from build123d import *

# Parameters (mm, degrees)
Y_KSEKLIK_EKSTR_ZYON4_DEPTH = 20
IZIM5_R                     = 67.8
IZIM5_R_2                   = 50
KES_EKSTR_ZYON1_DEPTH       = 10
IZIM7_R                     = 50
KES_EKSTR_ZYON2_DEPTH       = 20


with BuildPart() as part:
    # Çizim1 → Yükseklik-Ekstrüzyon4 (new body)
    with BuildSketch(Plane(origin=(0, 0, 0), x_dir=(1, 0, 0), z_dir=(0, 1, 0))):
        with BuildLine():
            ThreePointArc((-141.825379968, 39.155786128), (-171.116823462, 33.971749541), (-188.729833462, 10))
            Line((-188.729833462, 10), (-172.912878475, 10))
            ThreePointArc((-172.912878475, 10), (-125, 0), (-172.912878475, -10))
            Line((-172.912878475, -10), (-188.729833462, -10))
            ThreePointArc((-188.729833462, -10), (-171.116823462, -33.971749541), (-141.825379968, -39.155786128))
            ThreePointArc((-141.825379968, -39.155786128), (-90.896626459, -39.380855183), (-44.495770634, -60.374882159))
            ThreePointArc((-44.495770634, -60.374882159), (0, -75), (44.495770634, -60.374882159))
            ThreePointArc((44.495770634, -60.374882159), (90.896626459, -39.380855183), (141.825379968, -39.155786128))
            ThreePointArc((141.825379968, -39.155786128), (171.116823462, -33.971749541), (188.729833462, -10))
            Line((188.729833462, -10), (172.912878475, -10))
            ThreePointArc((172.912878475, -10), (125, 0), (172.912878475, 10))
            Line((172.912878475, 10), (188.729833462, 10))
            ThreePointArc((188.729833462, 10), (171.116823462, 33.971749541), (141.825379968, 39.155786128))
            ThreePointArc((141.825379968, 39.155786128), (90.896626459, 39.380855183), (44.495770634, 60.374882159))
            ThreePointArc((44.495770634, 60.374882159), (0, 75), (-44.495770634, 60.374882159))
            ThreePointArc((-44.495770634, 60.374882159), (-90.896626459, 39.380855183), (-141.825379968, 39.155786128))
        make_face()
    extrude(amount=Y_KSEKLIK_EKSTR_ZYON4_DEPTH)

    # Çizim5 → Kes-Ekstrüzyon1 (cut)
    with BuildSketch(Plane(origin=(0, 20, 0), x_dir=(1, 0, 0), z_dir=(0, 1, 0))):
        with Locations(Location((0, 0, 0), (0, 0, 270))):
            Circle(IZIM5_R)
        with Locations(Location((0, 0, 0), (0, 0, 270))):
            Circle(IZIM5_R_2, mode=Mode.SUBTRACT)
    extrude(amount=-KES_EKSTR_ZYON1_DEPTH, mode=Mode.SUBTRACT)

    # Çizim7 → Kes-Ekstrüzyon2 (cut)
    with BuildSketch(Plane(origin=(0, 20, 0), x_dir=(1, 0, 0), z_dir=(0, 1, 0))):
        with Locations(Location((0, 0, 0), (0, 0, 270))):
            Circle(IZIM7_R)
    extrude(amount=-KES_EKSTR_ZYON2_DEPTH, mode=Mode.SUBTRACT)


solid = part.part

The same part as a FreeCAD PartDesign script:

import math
import FreeCAD as App
import Part
import Sketcher
Q = App.Units.Quantity

doc = App.newDocument("Part")
body = doc.addObject("PartDesign::Body", "Body")

# Sketch on XZ plane
sketch1 = body.newObject("Sketcher::SketchObject", "Sketch")
sketch1.AttachmentSupport = (doc.getObject("XZ_Plane"), [""])
sketch1.MapMode = "FlatFace"
sketch1.addGeometry([
    Part.ArcOfCircle(Part.Circle(App.Vector(-150, 0, 0), App.Vector(0, 0, 1), 40), math.radians(-166), math.radians(-78)),  # 0
    Part.LineSegment(App.Vector(-189, -10, 0), App.Vector(-173, -10, 0)),  # 1
    Part.ArcOfCircle(Part.Circle(App.Vector(-150, 0, 0), App.Vector(0, 0, 1), 25), math.radians(-156), math.radians(156)),  # 2
    Part.LineSegment(App.Vector(-173, 10, 0), App.Vector(-189, 10, 0)),  # 3
    Part.ArcOfCircle(Part.Circle(App.Vector(-150, 0, 0), App.Vector(0, 0, 1), 40), math.radians(78), math.radians(166)),  # 4
    Part.ArcOfCircle(Part.Circle(App.Vector(-117, 159, 0), App.Vector(0, 0, 1), 122), math.radians(-102), math.radians(-54)),  # 5
    Part.ArcOfCircle(Part.Circle(App.Vector(0, 0, 0), App.Vector(0, 0, 1), 75), math.radians(54), math.radians(126)),  # 6
    Part.ArcOfCircle(Part.Circle(App.Vector(117, 159, 0), App.Vector(0, 0, 1), 122), math.radians(-126), math.radians(-78)),  # 7
    Part.ArcOfCircle(Part.Circle(App.Vector(150, 0, 0), App.Vector(0, 0, 1), 40), math.radians(14), math.radians(102)),  # 8
    Part.LineSegment(App.Vector(189, 10, 0), App.Vector(173, 10, 0)),  # 9
    Part.ArcOfCircle(Part.Circle(App.Vector(150, 0, 0), App.Vector(0, 0, 1), 25), math.radians(24), math.radians(336)),  # 10
    Part.LineSegment(App.Vector(173, -10, 0), App.Vector(189, -10, 0)),  # 11
    Part.ArcOfCircle(Part.Circle(App.Vector(150, 0, 0), App.Vector(0, 0, 1), 40), math.radians(-102), math.radians(-14)),  # 12
    Part.ArcOfCircle(Part.Circle(App.Vector(117, -159, 0), App.Vector(0, 0, 1), 122), math.radians(78), math.radians(126)),  # 13
    Part.ArcOfCircle(Part.Circle(App.Vector(0, 0, 0), App.Vector(0, 0, 1), 75), math.radians(-126), math.radians(-54)),  # 14
    Part.ArcOfCircle(Part.Circle(App.Vector(-117, -159, 0), App.Vector(0, 0, 1), 122), math.radians(54), math.radians(102)),  # 15
], False)
sketch1.addConstraint([
    Sketcher.Constraint("Coincident", 0, 1, 1, 1),
    Sketcher.Constraint("Coincident", 1, 2, 2, 1),
    Sketcher.Constraint("Coincident", 2, 2, 3, 1),
    Sketcher.Constraint("Coincident", 3, 2, 4, 2),
    Sketcher.Constraint("Tangent", 4, 1, 5, 1),
    Sketcher.Constraint("Tangent", 5, 2, 6, 2),
    Sketcher.Constraint("Tangent", 6, 1, 7, 1),
    Sketcher.Constraint("Tangent", 7, 2, 8, 2),
    Sketcher.Constraint("Coincident", 8, 1, 9, 1),
    Sketcher.Constraint("Coincident", 9, 2, 10, 1),
    Sketcher.Constraint("Coincident", 10, 2, 11, 1),
    Sketcher.Constraint("Coincident", 11, 2, 12, 2),
    Sketcher.Constraint("Tangent", 12, 1, 13, 1),
    Sketcher.Constraint("Tangent", 13, 2, 14, 2),
    Sketcher.Constraint("Tangent", 14, 1, 15, 1),
    Sketcher.Constraint("Tangent", 15, 2, 0, 2),
    Sketcher.Constraint("Horizontal", 1),
    Sketcher.Constraint("Horizontal", 3),
    Sketcher.Constraint("Horizontal", 9),
    Sketcher.Constraint("Horizontal", 11),
    Sketcher.Constraint("Coincident", 6, 3, -1, 1),
    Sketcher.Constraint("Coincident", 14, 3, -1, 1),
    Sketcher.Constraint("Coincident", 2, 3, 0, 3),
    Sketcher.Constraint("Coincident", 4, 3, 0, 3),
    Sketcher.Constraint("Coincident", 10, 3, 8, 3),
    Sketcher.Constraint("Coincident", 12, 3, 8, 3),
    Sketcher.Constraint("Equal", 0, 4),
    Sketcher.Constraint("Equal", 5, 7),
    Sketcher.Constraint("Equal", 4, 8),
    Sketcher.Constraint("Equal", 2, 10),
    Sketcher.Constraint("Equal", 8, 12),
    Sketcher.Constraint("Equal", 7, 13),
    Sketcher.Constraint("Equal", 6, 14),
    Sketcher.Constraint("Equal", 13, 15),
    Sketcher.Constraint("Symmetric", 0, 3, 8, 3, -1, 1),
    Sketcher.Constraint("Symmetric", 3, 2, 8, 1, -2),
    Sketcher.Constraint("Horizontal", 1, 2, 10, 2),
    Sketcher.Constraint("Vertical", 1, 2, 2, 2),
    Sketcher.Constraint("Radius", 0, Q("40 mm")),
    Sketcher.Constraint("Radius", 2, Q("25 mm")),
    Sketcher.Constraint("Radius", 6, Q("75 mm")),
    Sketcher.Constraint("DistanceX", 0, 3, -1, 1, Q("150 mm")),
    Sketcher.Constraint("DistanceY", 0, 1, -1, 1, Q("10 mm")),
    Sketcher.Constraint("Radius", 5, Q("122.021603 mm")),
])
pad1 = body.newObject("PartDesign::Pad", "Pad")
pad1.Profile = sketch1
pad1.Length = 20
pad1.Reversed = True

# Sketch on XZ plane
sketch2 = body.newObject("Sketcher::SketchObject", "Sketch001")
sketch2.AttachmentSupport = (doc.getObject("XZ_Plane"), [""])
sketch2.MapMode = "FlatFace"
sketch2.AttachmentOffset = App.Placement(App.Vector(0, 0, -20), App.Rotation())
sketch2.addGeometry([
    Part.Circle(App.Vector(0, 0, 0), App.Vector(0, 0, 1), 68),
    Part.Circle(App.Vector(0, 0, 0), App.Vector(0, 0, 1), 50),
], False)
sketch2.addConstraint([
    Sketcher.Constraint("Coincident", 0, 3, -1, 1),
    Sketcher.Constraint("Coincident", 1, 3, -1, 1),
    Sketcher.Constraint("Diameter", 1, Q("100 mm")),
    Sketcher.Constraint("Diameter", 0, Q("135.6 mm")),
])
pocket1 = body.newObject("PartDesign::Pocket", "Pocket")
pocket1.Profile = sketch2
pocket1.Length = 10
pocket1.Reversed = True

# Sketch on XZ plane
sketch3 = body.newObject("Sketcher::SketchObject", "Sketch002")
sketch3.AttachmentSupport = (doc.getObject("XZ_Plane"), [""])
sketch3.MapMode = "FlatFace"
sketch3.AttachmentOffset = App.Placement(App.Vector(0, 0, -20), App.Rotation())
sketch3.addGeometry(Part.Circle(App.Vector(0, 0, 0), App.Vector(0, 0, 1), 50), False)
sketch3.addConstraint([
    Sketcher.Constraint("Coincident", 0, 3, -1, 1),
    Sketcher.Constraint("Diameter", 0, Q("100 mm")),
])
pocket2 = body.newObject("PartDesign::Pocket", "Pocket001")
pocket2.Profile = sketch3
pocket2.Length = 20
pocket2.Reversed = True

doc.recompute()
